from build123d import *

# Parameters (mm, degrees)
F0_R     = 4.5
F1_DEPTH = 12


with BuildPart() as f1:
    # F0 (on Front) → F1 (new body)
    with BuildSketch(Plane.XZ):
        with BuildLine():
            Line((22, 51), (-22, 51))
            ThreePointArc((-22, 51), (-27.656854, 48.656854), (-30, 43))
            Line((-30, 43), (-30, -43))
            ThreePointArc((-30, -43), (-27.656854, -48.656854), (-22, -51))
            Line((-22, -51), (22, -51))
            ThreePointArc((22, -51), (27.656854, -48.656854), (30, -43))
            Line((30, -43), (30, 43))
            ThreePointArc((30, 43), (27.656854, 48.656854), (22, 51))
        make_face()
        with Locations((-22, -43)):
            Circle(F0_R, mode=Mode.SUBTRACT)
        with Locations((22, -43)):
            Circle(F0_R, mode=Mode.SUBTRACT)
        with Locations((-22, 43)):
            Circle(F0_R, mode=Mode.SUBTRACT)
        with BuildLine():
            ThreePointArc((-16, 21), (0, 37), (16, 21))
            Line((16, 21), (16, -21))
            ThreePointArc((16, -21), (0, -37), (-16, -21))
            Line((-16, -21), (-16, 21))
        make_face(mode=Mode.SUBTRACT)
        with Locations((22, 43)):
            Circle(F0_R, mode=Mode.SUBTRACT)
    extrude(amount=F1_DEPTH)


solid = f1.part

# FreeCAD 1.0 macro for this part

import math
import FreeCAD as App
import Part
import Sketcher
Q = App.Units.Quantity

doc = App.newDocument("Part")
body = doc.addObject("PartDesign::Body", "Body")

sketch1 = body.newObject("Sketcher::SketchObject", "Sketch")
sketch1.AttachmentSupport = (doc.getObject("XZ_Plane"), [""])
sketch1.MapMode = "FlatFace"
sketch1.addGeometry(Part.LineSegment(App.Vector(22, 51, 0), App.Vector(-22, 51, 0)), False)
sketch1.addGeometry(Part.ArcOfCircle(Part.Circle(App.Vector(-22, 43, 0), App.Vector(0, 0, 1), 8), math.radians(90), math.radians(180)), False)
sketch1.addGeometry(Part.LineSegment(App.Vector(-30, 43, 0), App.Vector(-30, -43, 0)), False)
sketch1.addGeometry(Part.ArcOfCircle(Part.Circle(App.Vector(-22, -43, 0), App.Vector(0, 0, 1), 8), math.radians(-180), math.radians(-90)), False)
sketch1.addGeometry(Part.LineSegment(App.Vector(-22, -51, 0), App.Vector(22, -51, 0)), False)
sketch1.addGeometry(Part.ArcOfCircle(Part.Circle(App.Vector(22, -43, 0), App.Vector(0, 0, 1), 8), math.radians(-90), math.radians(0)), False)
sketch1.addGeometry(Part.LineSegment(App.Vector(30, -43, 0), App.Vector(30, 43, 0)), False)
sketch1.addGeometry(Part.ArcOfCircle(Part.Circle(App.Vector(22, 43, 0), App.Vector(0, 0, 1), 8), math.radians(0), math.radians(90)), False)
sketch1.addGeometry(Part.Circle(App.Vector(-22, -43, 0), App.Vector(0, 0, 1), 4.5), False)
sketch1.addGeometry(Part.Circle(App.Vector(22, -43, 0), App.Vector(0, 0, 1), 4.5), False)
sketch1.addGeometry(Part.Circle(App.Vector(-22, 43, 0), App.Vector(0, 0, 1), 4.5), False)
sketch1.addGeometry(Part.LineSegment(App.Vector(-16, -21, 0), App.Vector(-16, 21, 0)), False)
sketch1.addGeometry(Part.ArcOfCircle(Part.Circle(App.Vector(0, 21, 0), App.Vector(0, 0, 1), 16), math.radians(0), math.radians(180)), False)
sketch1.addGeometry(Part.LineSegment(App.Vector(16, 21, 0), App.Vector(16, -21, 0)), False)
sketch1.addGeometry(Part.ArcOfCircle(Part.Circle(App.Vector(0, -21, 0), App.Vector(0, 0, 1), 16), math.radians(180), math.radians(360)), False)
sketch1.addGeometry(Part.Circle(App.Vector(22, 43, 0), App.Vector(0, 0, 1), 4.5), False)
sketch1.addConstraint(Sketcher.Constraint("Tangent", 0, 2, 1, 1))
sketch1.addConstraint(Sketcher.Constraint("Tangent", 1, 2, 2, 1))
sketch1.addConstraint(Sketcher.Constraint("Tangent", 2, 2, 3, 1))
sketch1.addConstraint(Sketcher.Constraint("Tangent", 3, 2, 4, 1))
sketch1.addConstraint(Sketcher.Constraint("Tangent", 4, 2, 5, 1))
sketch1.addConstraint(Sketcher.Constraint("Tangent", 5, 2, 6, 1))
sketch1.addConstraint(Sketcher.Constraint("Tangent", 6, 2, 7, 1))
sketch1.addConstraint(Sketcher.Constraint("Tangent", 7, 2, 0, 1))
sketch1.addConstraint(Sketcher.Constraint("Tangent", 11, 2, 12, 2))
sketch1.addConstraint(Sketcher.Constraint("Tangent", 12, 1, 13, 1))
sketch1.addConstraint(Sketcher.Constraint("Tangent", 13, 2, 14, 2))
sketch1.addConstraint(Sketcher.Constraint("Tangent", 14, 1, 11, 1))
sketch1.addConstraint(Sketcher.Constraint("Horizontal", 0))
sketch1.addConstraint(Sketcher.Constraint("Vertical", 2))
sketch1.addConstraint(Sketcher.Constraint("Horizontal", 4))
sketch1.addConstraint(Sketcher.Constraint("Vertical", 6))
sketch1.addConstraint(Sketcher.Constraint("Vertical", 11))
sketch1.addConstraint(Sketcher.Constraint("Vertical", 13))
sketch1.addConstraint(Sketcher.Constraint("Coincident", 8, 3, 3, 3))
sketch1.addConstraint(Sketcher.Constraint("Coincident", 9, 3, 5, 3))
sketch1.addConstraint(Sketcher.Constraint("Coincident", 10, 3, 1, 3))
sketch1.addConstraint(Sketcher.Constraint("Coincident", 15, 3, 7, 3))
sketch1.addConstraint(Sketcher.Constraint("Equal", 1, 3))
sketch1.addConstraint(Sketcher.Constraint("Equal", 3, 5))
sketch1.addConstraint(Sketcher.Constraint("Equal", 5, 7))
sketch1.addConstraint(Sketcher.Constraint("Equal", 8, 9))
sketch1.addConstraint(Sketcher.Constraint("Equal", 9, 10))
sketch1.addConstraint(Sketcher.Constraint("Equal", 10, 15))
sketch1.addConstraint(Sketcher.Constraint("Symmetric", 1, 3, 5, 3, -1, 1))
sketch1.addConstraint(Sketcher.Constraint("Symmetric", 12, 3, 14, 3, -1, 1))
sketch1.addConstraint(Sketcher.Constraint("Diameter", 8, Q("9 mm")))
sketch1.addConstraint(Sketcher.Constraint("Radius", 1, Q("8.000001 mm")))
sketch1.addConstraint(Sketcher.Constraint("Radius", 12, Q("16 mm")))
sketch1.addConstraint(Sketcher.Constraint("DistanceX", 0, 2, 0, 1, Q("44 mm")))
sketch1.addConstraint(Sketcher.Constraint("DistanceY", 2, 2, 2, 1, Q("86 mm")))
sketch1.addConstraint(Sketcher.Constraint("DistanceY", 11, 1, 11, 2, Q("42 mm")))
pad1 = body.newObject("PartDesign::Pad", "Pad")
pad1.Profile = sketch1
pad1.Length = 12

doc.recompute()
